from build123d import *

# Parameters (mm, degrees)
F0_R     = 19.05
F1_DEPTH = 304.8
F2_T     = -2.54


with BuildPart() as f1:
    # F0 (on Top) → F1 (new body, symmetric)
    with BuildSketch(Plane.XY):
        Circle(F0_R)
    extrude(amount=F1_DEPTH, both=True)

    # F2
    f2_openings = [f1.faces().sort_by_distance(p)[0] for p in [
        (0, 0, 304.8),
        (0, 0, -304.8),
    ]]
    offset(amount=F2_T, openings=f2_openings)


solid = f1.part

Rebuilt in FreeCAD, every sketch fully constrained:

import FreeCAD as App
import Part
import Sketcher
from FreeCAD import Vector
Q = App.Units.Quantity


def faces_at(feature, points):
    """Names of the faces that lie closest to the given points."""
    faces = feature.Shape.Faces
    near = lambda p: min(range(len(faces)), key=lambda i: faces[i].distToShape(Part.Vertex(*p))[0])
    return sorted({f"Face{near(p) + 1}" for p in points})

doc = App.newDocument("Part")
body = doc.addObject("PartDesign::Body", "Body")

sketch1 = body.newObject("Sketcher::SketchObject", "Sketch")
sketch1.AttachmentSupport = (doc.getObject("XY_Plane"), [""])
sketch1.MapMode = "FlatFace"
sketch1.addGeometry(Part.Circle(Vector(0, 0, 0), Vector(0, 0, 1), 19), False)
sketch1.addConstraint([
    Sketcher.Constraint("Coincident", 0, 3, -1, 1),
    Sketcher.Constraint("Diameter", 0, Q("1.5 in")),
])
pad1 = body.newObject("PartDesign::Pad", "Pad")
pad1.Profile = sketch1
pad1.Length = Q("24 in")
pad1.Midplane = True
doc.recompute()

thickness = body.newObject("PartDesign::Thickness", "Thickness")
thickness.Base = (pad1, faces_at(pad1, [(0, 0, 304.8), (0, 0, -304.8)]))
thickness.Value = Q("0.1 in")
thickness.Reversed = True
thickness.Join = "Arc"

doc.recompute()
